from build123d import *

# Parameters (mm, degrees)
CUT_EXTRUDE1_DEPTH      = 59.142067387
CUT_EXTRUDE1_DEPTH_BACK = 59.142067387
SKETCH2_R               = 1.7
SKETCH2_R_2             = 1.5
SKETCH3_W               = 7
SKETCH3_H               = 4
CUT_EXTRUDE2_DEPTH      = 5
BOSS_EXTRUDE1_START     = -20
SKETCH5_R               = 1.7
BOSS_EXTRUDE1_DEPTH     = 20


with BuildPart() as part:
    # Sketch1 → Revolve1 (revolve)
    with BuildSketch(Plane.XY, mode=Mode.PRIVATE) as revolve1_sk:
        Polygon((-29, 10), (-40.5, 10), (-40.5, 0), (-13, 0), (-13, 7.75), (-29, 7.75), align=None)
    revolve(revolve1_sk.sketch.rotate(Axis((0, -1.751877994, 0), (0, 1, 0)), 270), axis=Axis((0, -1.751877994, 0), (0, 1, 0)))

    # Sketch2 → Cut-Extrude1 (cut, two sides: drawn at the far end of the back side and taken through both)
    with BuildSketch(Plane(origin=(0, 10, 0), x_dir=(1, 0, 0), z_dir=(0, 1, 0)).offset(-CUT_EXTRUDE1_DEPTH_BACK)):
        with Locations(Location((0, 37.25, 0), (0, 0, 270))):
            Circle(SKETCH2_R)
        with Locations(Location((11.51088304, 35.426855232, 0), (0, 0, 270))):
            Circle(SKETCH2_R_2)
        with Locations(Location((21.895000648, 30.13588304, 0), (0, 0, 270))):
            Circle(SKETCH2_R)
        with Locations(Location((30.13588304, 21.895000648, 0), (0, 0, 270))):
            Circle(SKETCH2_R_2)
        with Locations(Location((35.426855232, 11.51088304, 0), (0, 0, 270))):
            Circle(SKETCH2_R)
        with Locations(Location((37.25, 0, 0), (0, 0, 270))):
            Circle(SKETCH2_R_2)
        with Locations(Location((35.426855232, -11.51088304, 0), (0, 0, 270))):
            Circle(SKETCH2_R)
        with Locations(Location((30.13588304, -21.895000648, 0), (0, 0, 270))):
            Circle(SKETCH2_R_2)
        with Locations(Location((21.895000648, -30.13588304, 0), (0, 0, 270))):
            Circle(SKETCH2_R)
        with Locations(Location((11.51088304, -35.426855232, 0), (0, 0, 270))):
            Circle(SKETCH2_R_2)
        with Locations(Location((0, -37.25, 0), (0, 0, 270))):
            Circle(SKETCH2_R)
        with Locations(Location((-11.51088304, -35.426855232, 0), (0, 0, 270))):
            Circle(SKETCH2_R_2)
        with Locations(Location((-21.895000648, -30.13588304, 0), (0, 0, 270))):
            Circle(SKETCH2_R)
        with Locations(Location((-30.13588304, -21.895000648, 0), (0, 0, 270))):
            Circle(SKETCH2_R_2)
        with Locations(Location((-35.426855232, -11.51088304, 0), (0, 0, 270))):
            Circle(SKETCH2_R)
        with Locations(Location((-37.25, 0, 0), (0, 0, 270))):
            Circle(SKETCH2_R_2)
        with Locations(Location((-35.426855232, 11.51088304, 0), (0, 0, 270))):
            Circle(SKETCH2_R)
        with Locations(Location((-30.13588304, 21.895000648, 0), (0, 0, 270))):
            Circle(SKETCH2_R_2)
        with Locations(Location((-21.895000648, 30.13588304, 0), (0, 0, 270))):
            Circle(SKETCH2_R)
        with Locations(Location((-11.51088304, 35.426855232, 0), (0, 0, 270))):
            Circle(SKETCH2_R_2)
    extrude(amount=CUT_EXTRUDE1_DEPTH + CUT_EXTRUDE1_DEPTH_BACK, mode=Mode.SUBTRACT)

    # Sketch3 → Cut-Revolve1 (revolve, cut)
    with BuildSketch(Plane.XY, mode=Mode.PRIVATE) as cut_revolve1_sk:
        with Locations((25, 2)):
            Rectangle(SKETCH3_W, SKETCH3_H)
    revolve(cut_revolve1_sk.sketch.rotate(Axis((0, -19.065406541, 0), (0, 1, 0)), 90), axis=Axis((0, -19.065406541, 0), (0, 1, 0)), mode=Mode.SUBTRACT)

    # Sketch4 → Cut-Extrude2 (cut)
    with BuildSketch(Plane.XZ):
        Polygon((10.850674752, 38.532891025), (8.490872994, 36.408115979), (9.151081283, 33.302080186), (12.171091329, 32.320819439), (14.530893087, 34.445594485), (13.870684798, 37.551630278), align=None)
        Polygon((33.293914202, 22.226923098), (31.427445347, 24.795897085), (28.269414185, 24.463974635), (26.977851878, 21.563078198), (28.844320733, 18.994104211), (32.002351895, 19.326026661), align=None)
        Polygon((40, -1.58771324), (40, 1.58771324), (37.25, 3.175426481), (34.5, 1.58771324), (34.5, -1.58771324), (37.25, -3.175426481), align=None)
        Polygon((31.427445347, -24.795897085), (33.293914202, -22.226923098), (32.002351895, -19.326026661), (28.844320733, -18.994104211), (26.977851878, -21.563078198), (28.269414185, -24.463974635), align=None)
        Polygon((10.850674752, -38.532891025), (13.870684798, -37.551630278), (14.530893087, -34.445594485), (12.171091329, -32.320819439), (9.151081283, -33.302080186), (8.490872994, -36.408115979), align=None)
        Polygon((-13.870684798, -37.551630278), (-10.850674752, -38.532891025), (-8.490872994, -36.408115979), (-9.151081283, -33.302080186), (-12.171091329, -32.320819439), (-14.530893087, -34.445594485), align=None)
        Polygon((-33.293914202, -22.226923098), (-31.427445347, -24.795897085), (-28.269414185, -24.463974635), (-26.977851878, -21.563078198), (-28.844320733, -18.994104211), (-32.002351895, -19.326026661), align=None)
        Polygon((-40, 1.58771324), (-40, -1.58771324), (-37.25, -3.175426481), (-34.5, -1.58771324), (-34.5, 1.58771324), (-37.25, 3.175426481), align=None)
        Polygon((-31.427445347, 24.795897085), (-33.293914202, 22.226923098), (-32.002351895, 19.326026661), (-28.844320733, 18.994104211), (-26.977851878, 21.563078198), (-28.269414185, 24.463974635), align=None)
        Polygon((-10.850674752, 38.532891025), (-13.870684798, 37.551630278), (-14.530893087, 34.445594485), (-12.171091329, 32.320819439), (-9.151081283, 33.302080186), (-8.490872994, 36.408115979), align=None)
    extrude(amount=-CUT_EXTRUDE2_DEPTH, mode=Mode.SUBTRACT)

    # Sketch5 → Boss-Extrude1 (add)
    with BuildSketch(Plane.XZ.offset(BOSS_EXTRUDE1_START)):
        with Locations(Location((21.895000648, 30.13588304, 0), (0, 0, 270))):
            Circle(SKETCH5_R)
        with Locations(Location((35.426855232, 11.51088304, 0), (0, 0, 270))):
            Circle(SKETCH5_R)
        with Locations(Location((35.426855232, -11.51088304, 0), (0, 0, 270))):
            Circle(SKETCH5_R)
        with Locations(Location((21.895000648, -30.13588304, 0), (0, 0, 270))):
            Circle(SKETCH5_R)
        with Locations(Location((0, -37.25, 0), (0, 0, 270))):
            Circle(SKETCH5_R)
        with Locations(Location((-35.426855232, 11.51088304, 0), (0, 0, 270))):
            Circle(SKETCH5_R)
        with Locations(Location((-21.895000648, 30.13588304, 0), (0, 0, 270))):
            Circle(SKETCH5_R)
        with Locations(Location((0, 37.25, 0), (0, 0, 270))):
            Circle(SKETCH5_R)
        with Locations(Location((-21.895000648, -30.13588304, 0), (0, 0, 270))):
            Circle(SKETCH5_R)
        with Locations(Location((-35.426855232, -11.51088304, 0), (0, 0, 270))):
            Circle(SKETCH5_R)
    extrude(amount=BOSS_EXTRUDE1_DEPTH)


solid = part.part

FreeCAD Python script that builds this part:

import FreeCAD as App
import Part
import Sketcher
Q = App.Units.Quantity


def add_polygon(sketch, points):
    """Adds a closed chain of lines whose ends are joined by coincident constraints."""
    first, n = sketch.GeometryCount, len(points)
    for a, b in zip(points, points[1:] + points[:1]):
        sketch.addGeometry(Part.LineSegment(App.Vector(*a, 0), App.Vector(*b, 0)), False)
    for i in range(n):
        sketch.addConstraint(Sketcher.Constraint("Coincident", first + i, 2, first + (i + 1) % n, 1))

doc = App.newDocument("Part")
body = doc.addObject("PartDesign::Body", "Body")

sketch1 = body.newObject("Sketcher::SketchObject", "Sketch")
sketch1.AttachmentSupport = (doc.getObject("XY_Plane"), [""])
sketch1.MapMode = "FlatFace"
add_polygon(sketch1, [(-29, 10), (-40.5, 10), (-40.5, 0), (-13, 0), (-13, 7.8), (-29, 7.8)])
sketch1.addConstraint([
    Sketcher.Constraint("Horizontal", 0),
    Sketcher.Constraint("Vertical", 1),
    Sketcher.Constraint("Horizontal", 2),
    Sketcher.Constraint("Vertical", 3),
    Sketcher.Constraint("Horizontal", 4),
    Sketcher.Constraint("Vertical", 5),
    Sketcher.Constraint("PointOnObject", 1, 2, -1),
    Sketcher.Constraint("DistanceX", 4, 2, 4, 1, Q("16 mm")),
    Sketcher.Constraint("DistanceY", 1, 2, 1, 1, Q("10 mm")),
    Sketcher.Constraint("DistanceX", 0, 2, 0, 1, Q("11.5 mm")),
    Sketcher.Constraint("DistanceX", 2, 2, -1, 1, Q("13 mm")),
    Sketcher.Constraint("DistanceY", 3, 1, 3, 2, Q("7.75 mm")),
])
revolution = body.newObject("PartDesign::Revolution", "Revolution")
revolution.Profile = sketch1
revolution.ReferenceAxis = (sketch1, ["V_Axis"])
revolution.Angle = 360

sketch2 = body.newObject("Sketcher::SketchObject", "Sketch001")
sketch2.AttachmentSupport = (doc.getObject("XZ_Plane"), [""])
sketch2.MapMode = "FlatFace"
sketch2.AttachmentOffset = App.Placement(App.Vector(0, 0, -10), App.Rotation())
sketch2.addGeometry([
    Part.Circle(App.Vector(0, -37.2, 0), App.Vector(0, 0, 1), 1.7),
    Part.Circle(App.Vector(11.5, -35.4, 0), App.Vector(0, 0, 1), 1.5),
    Part.Circle(App.Vector(21.9, -30.1, 0), App.Vector(0, 0, 1), 1.7),
    Part.Circle(App.Vector(30.1, -21.9, 0), App.Vector(0, 0, 1), 1.5),
    Part.Circle(App.Vector(35.4, -11.5, 0), App.Vector(0, 0, 1), 1.7),
    Part.Circle(App.Vector(37.2, 0, 0), App.Vector(0, 0, 1), 1.5),
    Part.Circle(App.Vector(35.4, 11.5, 0), App.Vector(0, 0, 1), 1.7),
    Part.Circle(App.Vector(30.1, 21.9, 0), App.Vector(0, 0, 1), 1.5),
    Part.Circle(App.Vector(21.9, 30.1, 0), App.Vector(0, 0, 1), 1.7),
    Part.Circle(App.Vector(11.5, 35.4, 0), App.Vector(0, 0, 1), 1.5),
    Part.Circle(App.Vector(0, 37.2, 0), App.Vector(0, 0, 1), 1.7),
    Part.Circle(App.Vector(-11.5, 35.4, 0), App.Vector(0, 0, 1), 1.5),
    Part.Circle(App.Vector(-21.9, 30.1, 0), App.Vector(0, 0, 1), 1.7),
    Part.Circle(App.Vector(-30.1, 21.9, 0), App.Vector(0, 0, 1), 1.5),
    Part.Circle(App.Vector(-35.4, 11.5, 0), App.Vector(0, 0, 1), 1.7),
    Part.Circle(App.Vector(-37.2, 0, 0), App.Vector(0, 0, 1), 1.5),
    Part.Circle(App.Vector(-35.4, -11.5, 0), App.Vector(0, 0, 1), 1.7),
    Part.Circle(App.Vector(-30.1, -21.9, 0), App.Vector(0, 0, 1), 1.5),
    Part.Circle(App.Vector(-21.9, -30.1, 0), App.Vector(0, 0, 1), 1.7),
    Part.Circle(App.Vector(-11.5, -35.4, 0), App.Vector(0, 0, 1), 1.5),
], False)
sketch2.addConstraint([
    Sketcher.Constraint("Equal", 0, 2),
    Sketcher.Constraint("Equal", 1, 3),
    Sketcher.Constraint("Equal", 2, 4),
    Sketcher.Constraint("Equal", 3, 5),
    Sketcher.Constraint("Equal", 4, 6),
    Sketcher.Constraint("Equal", 5, 7),
    Sketcher.Constraint("Equal", 6, 8),
    Sketcher.Constraint("Equal", 7, 9),
    Sketcher.Constraint("Equal", 8, 10),
    Sketcher.Constraint("Equal", 9, 11),
    Sketcher.Constraint("Equal", 10, 12),
    Sketcher.Constraint("Equal", 11, 13),
    Sketcher.Constraint("Equal", 12, 14),
    Sketcher.Constraint("Equal", 13, 15),
    Sketcher.Constraint("Equal", 14, 16),
    Sketcher.Constraint("Equal", 15, 17),
    Sketcher.Constraint("Equal", 16, 18),
    Sketcher.Constraint("Equal", 17, 19),
    Sketcher.Constraint("Symmetric", 0, 3, 10, 3, -1, 1),
    Sketcher.Constraint("Symmetric", 1, 3, 11, 3, -1, 1),
    Sketcher.Constraint("Symmetric", 2, 3, 12, 3, -1, 1),
    Sketcher.Constraint("Symmetric", 3, 3, 13, 3, -1, 1),
    Sketcher.Constraint("Symmetric", 4, 3, 14, 3, -1, 1),
    Sketcher.Constraint("Symmetric", 5, 3, 15, 3, -1, 1),
    Sketcher.Constraint("Symmetric", 6, 3, 16, 3, -1, 1),
    Sketcher.Constraint("Symmetric", 7, 3, 17, 3, -1, 1),
    Sketcher.Constraint("Symmetric", 8, 3, 18, 3, -1, 1),
    Sketcher.Constraint("Symmetric", 9, 3, 19, 3, -1, 1),
    Sketcher.Constraint("Symmetric", 9, 3, 11, 3, -2),
    Sketcher.Constraint("Symmetric", 8, 3, 12, 3, -2),
    Sketcher.Constraint("Symmetric", 7, 3, 13, 3, -2),
    Sketcher.Constraint("Symmetric", 6, 3, 14, 3, -2),
    Sketcher.Constraint("PointOnObject", 0, 3, -2),
    Sketcher.Constraint("PointOnObject", 5, 3, -1),
    Sketcher.Constraint("Diameter", 1, Q("3 mm")),
    Sketcher.Constraint("Diameter", 0, Q("3.4 mm")),
    Sketcher.Constraint("DistanceY", 0, 3, -1, 1, Q("37.25 mm")),
    Sketcher.Constraint("DistanceX", -1, 1, 5, 3, Q("37.25 mm")),
    Sketcher.Constraint("DistanceY", 3, 3, 7, 3, Q("43.790001 mm")),
    Sketcher.Constraint("DistanceX", 12, 3, 8, 3, Q("43.790001 mm")),
    Sketcher.Constraint("DistanceX", 1, 3, 3, 3, Q("18.625 mm")),
    Sketcher.Constraint("DistanceY", 2, 3, 4, 3, Q("18.625 mm")),
    Sketcher.Constraint("DistanceY", 1, 3, 6, 3, Q("46.937738 mm")),
    Sketcher.Constraint("DistanceX", 11, 3, 6, 3, Q("46.937738 mm")),
    Sketcher.Constraint("DistanceX", -1, 1, 1, 3, Q("11.510883 mm")),
    Sketcher.Constraint("DistanceY", 1, 3, -1, 1, Q("35.426855 mm")),
])
pocket1 = body.newObject("PartDesign::Pocket", "Pocket")
pocket1.Profile = sketch2
pocket1.Type = "ThroughAll"
pocket1.Midplane = True

sketch3 = body.newObject("Sketcher::SketchObject", "Sketch002")
sketch3.AttachmentSupport = (doc.getObject("XY_Plane"), [""])
sketch3.MapMode = "FlatFace"
add_polygon(sketch3, [(21.5, 4), (21.5, 0), (28.5, 0), (28.5, 4)])
sketch3.addConstraint([
    Sketcher.Constraint("Vertical", 0),
    Sketcher.Constraint("Horizontal", 1),
    Sketcher.Constraint("Vertical", 2),
    Sketcher.Constraint("Horizontal", 3),
    Sketcher.Constraint("PointOnObject", 0, 2, -1),
    Sketcher.Constraint("DistanceX", 1, 1, 1, 2, Q("7 mm")),
    Sketcher.Constraint("DistanceY", 0, 2, 0, 1, Q("4 mm")),
    Sketcher.Constraint("DistanceX", -1, 1, 0, 2, Q("21.5 mm")),
])
groove = body.newObject("PartDesign::Groove", "Groove")
groove.Profile = sketch3
groove.ReferenceAxis = (sketch3, ["V_Axis"])
groove.Angle = 360

sketch4 = body.newObject("Sketcher::SketchObject", "Sketch003")
sketch4.AttachmentSupport = (doc.getObject("XZ_Plane"), [""])
sketch4.MapMode = "FlatFace"
add_polygon(sketch4, [(10.9, 38.5), (8.5, 36.4), (9.2, 33.3), (12.2, 32.3), (14.5, 34.4), (13.9, 37.6)])
add_polygon(sketch4, [(33.3, 22.2), (31.4, 24.8), (28.3, 24.5), (27, 21.6), (28.8, 19), (32, 19.3)])
add_polygon(sketch4, [(40, -1.6), (40, 1.6), (37.2, 3.2), (34.5, 1.6), (34.5, -1.6), (37.2, -3.2)])
add_polygon(sketch4, [(31.4, -24.8), (33.3, -22.2), (32, -19.3), (28.8, -19), (27, -21.6), (28.3, -24.5)])
add_polygon(sketch4, [(10.9, -38.5), (13.9, -37.6), (14.5, -34.4), (12.2, -32.3), (9.2, -33.3), (8.5, -36.4)])
add_polygon(sketch4, [(-13.9, -37.6), (-10.9, -38.5), (-8.5, -36.4), (-9.2, -33.3), (-12.2, -32.3), (-14.5, -34.4)])
add_polygon(sketch4, [(-33.3, -22.2), (-31.4, -24.8), (-28.3, -24.5), (-27, -21.6), (-28.8, -19), (-32, -19.3)])
add_polygon(sketch4, [(-40, 1.6), (-40, -1.6), (-37.2, -3.2), (-34.5, -1.6), (-34.5, 1.6), (-37.2, 3.2)])
add_polygon(sketch4, [(-31.4, 24.8), (-33.3, 22.2), (-32, 19.3), (-28.8, 19), (-27, 21.6), (-28.3, 24.5)])
add_polygon(sketch4, [(-10.9, 38.5), (-13.9, 37.6), (-14.5, 34.4), (-12.2, 32.3), (-9.2, 33.3), (-8.5, 36.4)])
sketch4.addConstraint([
    Sketcher.Constraint("Vertical", 12),
    Sketcher.Constraint("Vertical", 15),
    Sketcher.Constraint("Vertical", 42),
    Sketcher.Constraint("Vertical", 45),
    Sketcher.Constraint("Symmetric", 5, 2, 30, 2, -1, 1),
    Sketcher.Constraint("Symmetric", 0, 2, 31, 2, -1, 1),
    Sketcher.Constraint("Symmetric", 1, 2, 32, 2, -1, 1),
    Sketcher.Constraint("Symmetric", 2, 2, 33, 2, -1, 1),
    Sketcher.Constraint("Symmetric", 3, 2, 34, 2, -1, 1),
    Sketcher.Constraint("Symmetric", 4, 2, 35, 2, -1, 1),
    Sketcher.Constraint("Symmetric", 6, 2, 36, 2, -1, 1),
    Sketcher.Constraint("Symmetric", 7, 2, 37, 2, -1, 1),
    Sketcher.Constraint("Symmetric", 8, 2, 38, 2, -1, 1),
    Sketcher.Constraint("Symmetric", 9, 2, 39, 2, -1, 1),
    Sketcher.Constraint("Symmetric", 10, 2, 40, 2, -1, 1),
    Sketcher.Constraint("Symmetric", 11, 2, 41, 2, -1, 1),
    Sketcher.Constraint("Symmetric", 12, 2, 42, 2, -1, 1),
    Sketcher.Constraint("Symmetric", 13, 2, 43, 2, -1, 1),
    Sketcher.Constraint("Symmetric", 14, 2, 44, 2, -1, 1),
    Sketcher.Constraint("Symmetric", 16, 2, 46, 2, -1, 1),
    Sketcher.Constraint("Symmetric", 18, 2, 48, 2, -1, 1),
    Sketcher.Constraint("Symmetric", 19, 2, 49, 2, -1, 1),
    Sketcher.Constraint("Symmetric", 20, 2, 50, 2, -1, 1),
    Sketcher.Constraint("Symmetric", 21, 2, 51, 2, -1, 1),
    Sketcher.Constraint("Symmetric", 22, 2, 52, 2, -1, 1),
    Sketcher.Constraint("Symmetric", 23, 2, 53, 2, -1, 1),
    Sketcher.Constraint("Symmetric", 24, 2, 54, 2, -1, 1),
    Sketcher.Constraint("Symmetric", 25, 2, 55, 2, -1, 1),
    Sketcher.Constraint("Symmetric", 26, 2, 56, 2, -1, 1),
    Sketcher.Constraint("Symmetric", 27, 2, 57, 2, -1, 1),
    Sketcher.Constraint("Symmetric", 28, 2, 58, 2, -1, 1),
    Sketcher.Constraint("Symmetric", 29, 2, 59, 2, -1, 1),
    Sketcher.Constraint("Symmetric", 29, 2, 30, 2, -2),
    Sketcher.Constraint("Symmetric", 28, 2, 31, 2, -2),
    Sketcher.Constraint("Symmetric", 27, 2, 32, 2, -2),
    Sketcher.Constraint("Symmetric", 26, 2, 33, 2, -2),
    Sketcher.Constraint("Symmetric", 25, 2, 34, 2, -2),
    Sketcher.Constraint("Symmetric", 24, 2, 35, 2, -2),
    Sketcher.Constraint("Symmetric", 23, 2, 36, 2, -2),
    Sketcher.Constraint("Symmetric", 22, 2, 37, 2, -2),
    Sketcher.Constraint("Symmetric", 21, 2, 38, 2, -2),
    Sketcher.Constraint("Symmetric", 20, 2, 39, 2, -2),
    Sketcher.Constraint("Symmetric", 19, 2, 40, 2, -2),
    Sketcher.Constraint("Symmetric", 18, 2, 41, 2, -2),
    Sketcher.Constraint("Symmetric", 16, 2, 43, 2, -2),
    Sketcher.Constraint("Parallel", 0, 3),
    Sketcher.Constraint("Parallel", 1, 4),
    Sketcher.Constraint("Parallel", 2, 5),
    Sketcher.Constraint("Parallel", 6, 9),
    Sketcher.Constraint("Parallel", 7, 10),
    Sketcher.Constraint("Parallel", 8, 11),
    Sketcher.Constraint("Parallel", 13, 16),
    Sketcher.Constraint("Parallel", 14, 17),
    Sketcher.Constraint("Parallel", 43, 46),
    Sketcher.Constraint("Parallel", 44, 47),
    Sketcher.Constraint("Horizontal", 12, 2, 14, 2),
    Sketcher.Constraint("Horizontal", 15, 2, 17, 2),
    Sketcher.Constraint("Equal", 0, 1),
    Sketcher.Constraint("Equal", 1, 2),
    Sketcher.Constraint("Equal", 2, 3),
    Sketcher.Constraint("Equal", 5, 6),
    Sketcher.Constraint("Equal", 6, 7),
    Sketcher.Constraint("Equal", 7, 8),
    Sketcher.Constraint("Equal", 8, 9),
    Sketcher.Constraint("Equal", 11, 13),
    Sketcher.Constraint("Angle", 0, Q("-138 deg")),
    Sketcher.Constraint("Angle", 1, Q("-78 deg")),
    Sketcher.Constraint("Angle", 2, Q("-18 deg")),
    Sketcher.Constraint("Angle", 6, Q("126 deg")),
    Sketcher.Constraint("Angle", 7, Q("-174 deg")),
    Sketcher.Constraint("Angle", 8, Q("-114 deg")),
    Sketcher.Constraint("Angle", 13, Q("150 deg")),
    Sketcher.Constraint("DistanceX", -1, 1, 12, 2, Q("40 mm")),
    Sketcher.Constraint("DistanceX", -1, 1, 14, 2, Q("34.5 mm")),
    Sketcher.Constraint("DistanceY", 27, 2, 21, 2, Q("11.739002 mm")),
    Sketcher.Constraint("DistanceY", 13, 2, 10, 2, Q("16.1506 mm")),
    Sketcher.Constraint("DistanceY", 12, 1, 12, 2, Q("3.175426 mm")),
    Sketcher.Constraint("DistanceX", -1, 1, 1, 2, Q("9.151081 mm")),
    Sketcher.Constraint("DistanceX", -1, 1, 8, 2, Q("26.977852 mm")),
])
pocket2 = body.newObject("PartDesign::Pocket", "Pocket001")
pocket2.Profile = sketch4
pocket2.Length = 5

sketch5 = body.newObject("Sketcher::SketchObject", "Sketch004")
sketch5.AttachmentSupport = (doc.getObject("XZ_Plane"), [""])
sketch5.MapMode = "FlatFace"
sketch5.AttachmentOffset = App.Placement(App.Vector(0, 0, -20), App.Rotation())
sketch5.addGeometry([
    Part.Circle(App.Vector(21.9, 30.1, 0), App.Vector(0, 0, 1), 1.7),
    Part.Circle(App.Vector(35.4, 11.5, 0), App.Vector(0, 0, 1), 1.7),
    Part.Circle(App.Vector(35.4, -11.5, 0), App.Vector(0, 0, 1), 1.7),
    Part.Circle(App.Vector(21.9, -30.1, 0), App.Vector(0, 0, 1), 1.7),
    Part.Circle(App.Vector(0, -37.2, 0), App.Vector(0, 0, 1), 1.7),
    Part.Circle(App.Vector(-35.4, 11.5, 0), App.Vector(0, 0, 1), 1.7),
    Part.Circle(App.Vector(-21.9, 30.1, 0), App.Vector(0, 0, 1), 1.7),
    Part.Circle(App.Vector(0, 37.2, 0), App.Vector(0, 0, 1), 1.7),
    Part.Circle(App.Vector(-21.9, -30.1, 0), App.Vector(0, 0, 1), 1.7),
    Part.Circle(App.Vector(-35.4, -11.5, 0), App.Vector(0, 0, 1), 1.7),
], False)
sketch5.addConstraint([
    Sketcher.Constraint("Equal", 0, 1),
    Sketcher.Constraint("Equal", 1, 2),
    Sketcher.Constraint("Equal", 2, 3),
    Sketcher.Constraint("Equal", 3, 4),
    Sketcher.Constraint("Equal", 4, 5),
    Sketcher.Constraint("Equal", 5, 6),
    Sketcher.Constraint("Equal", 6, 7),
    Sketcher.Constraint("Equal", 7, 8),
    Sketcher.Constraint("Equal", 8, 9),
    Sketcher.Constraint("Symmetric", 2, 3, 5, 3, -1, 1),
    Sketcher.Constraint("Symmetric", 3, 3, 6, 3, -1, 1),
    Sketcher.Constraint("Symmetric", 4, 3, 7, 3, -1, 1),
    Sketcher.Constraint("Symmetric", 0, 3, 8, 3, -1, 1),
    Sketcher.Constraint("Symmetric", 1, 3, 9, 3, -1, 1),
    Sketcher.Constraint("Symmetric", 1, 3, 5, 3, -2),
    Sketcher.Constraint("Symmetric", 0, 3, 6, 3, -2),
    Sketcher.Constraint("PointOnObject", 4, 3, -2),
    Sketcher.Constraint("Diameter", 0, Q("3.4 mm")),
    Sketcher.Constraint("DistanceY", 4, 3, -1, 1, Q("37.25 mm")),
    Sketcher.Constraint("DistanceX", 6, 3, 0, 3, Q("43.790001 mm")),
    Sketcher.Constraint("DistanceY", 1, 3, 0, 3, Q("18.625 mm")),
    Sketcher.Constraint("DistanceX", 5, 3, 1, 3, Q("70.85371 mm")),
    Sketcher.Constraint("DistanceY", -1, 1, 0, 3, Q("30.135883 mm")),
])
pad1 = body.newObject("PartDesign::Pad", "Pad")
pad1.Profile = sketch5
pad1.Length = 20

doc.recompute()
